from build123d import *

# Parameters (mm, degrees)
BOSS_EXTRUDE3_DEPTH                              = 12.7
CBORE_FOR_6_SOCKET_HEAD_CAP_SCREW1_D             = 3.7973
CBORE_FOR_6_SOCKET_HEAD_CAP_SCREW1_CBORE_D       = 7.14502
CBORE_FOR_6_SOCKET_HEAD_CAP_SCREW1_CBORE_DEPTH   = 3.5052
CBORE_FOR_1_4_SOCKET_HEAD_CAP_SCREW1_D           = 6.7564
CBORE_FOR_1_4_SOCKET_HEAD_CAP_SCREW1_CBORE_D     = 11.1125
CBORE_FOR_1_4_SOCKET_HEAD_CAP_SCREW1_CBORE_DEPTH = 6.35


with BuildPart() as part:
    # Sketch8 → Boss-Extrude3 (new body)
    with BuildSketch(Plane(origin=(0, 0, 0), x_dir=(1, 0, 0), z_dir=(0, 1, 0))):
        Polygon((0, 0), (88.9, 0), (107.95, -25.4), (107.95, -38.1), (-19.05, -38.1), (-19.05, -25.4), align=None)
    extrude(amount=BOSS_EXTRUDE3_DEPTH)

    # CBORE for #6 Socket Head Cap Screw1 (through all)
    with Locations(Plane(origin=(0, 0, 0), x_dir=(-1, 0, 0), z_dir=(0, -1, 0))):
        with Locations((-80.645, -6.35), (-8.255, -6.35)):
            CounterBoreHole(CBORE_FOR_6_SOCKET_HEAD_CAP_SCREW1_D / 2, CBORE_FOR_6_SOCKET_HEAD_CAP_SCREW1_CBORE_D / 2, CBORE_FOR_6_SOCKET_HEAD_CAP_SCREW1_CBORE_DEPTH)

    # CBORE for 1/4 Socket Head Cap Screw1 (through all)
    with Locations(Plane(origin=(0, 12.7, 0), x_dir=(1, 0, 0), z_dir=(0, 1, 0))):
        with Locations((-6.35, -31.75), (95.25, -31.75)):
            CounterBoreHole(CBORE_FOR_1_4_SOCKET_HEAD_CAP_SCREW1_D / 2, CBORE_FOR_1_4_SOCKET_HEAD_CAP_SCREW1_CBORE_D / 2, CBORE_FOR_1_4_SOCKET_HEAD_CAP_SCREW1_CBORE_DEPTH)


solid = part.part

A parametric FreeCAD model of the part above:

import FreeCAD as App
import Part
import Sketcher
from FreeCAD import Vector
Q = App.Units.Quantity

doc = App.newDocument("Part")
body = doc.addObject("PartDesign::Body", "Body")

# Sketch on XZ plane
sketch1 = body.newObject("Sketcher::SketchObject", "Sketch")
sketch1.AttachmentSupport = (doc.getObject("XZ_Plane"), [""])
sketch1.MapMode = "FlatFace"
sketch1.addGeometry([
    Part.LineSegment(Vector(88.9, 0, 0), Vector(0, 0, 0)),  # 0
    Part.LineSegment(Vector(0, 0, 0), Vector(-19.05, 25.4, 0)),  # 1
    Part.LineSegment(Vector(-19.05, 25.4, 0), Vector(-19.05, 38.1, 0)),  # 2
    Part.LineSegment(Vector(-19.05, 38.1, 0), Vector(107.95, 38.1, 0)),  # 3
    Part.LineSegment(Vector(107.95, 38.1, 0), Vector(107.95, 25.4, 0)),  # 4
    Part.LineSegment(Vector(107.95, 25.4, 0), Vector(88.9, 0, 0)),  # 5
], False)
sketch1.addConstraint([
    Sketcher.Constraint("Coincident", 0, 2, 1, 1),
    Sketcher.Constraint("Coincident", 1, 2, 2, 1),
    Sketcher.Constraint("Coincident", 2, 2, 3, 1),
    Sketcher.Constraint("Coincident", 3, 2, 4, 1),
    Sketcher.Constraint("Coincident", 4, 2, 5, 1),
    Sketcher.Constraint("Coincident", 5, 2, 0, 1),
    Sketcher.Constraint("Horizontal", 0),
    Sketcher.Constraint("Vertical", 2),
    Sketcher.Constraint("Horizontal", 3),
    Sketcher.Constraint("Vertical", 4),
    Sketcher.Constraint("Coincident", 0, 2, -1, 1),
    Sketcher.Constraint("Horizontal", 1, 2, 4, 2),
    Sketcher.Constraint("Equal", 1, 5),
    Sketcher.Constraint("DistanceX", 3, 1, 3, 2, Q("5 in")),
    Sketcher.Constraint("DistanceX", 0, 2, 0, 1, Q("3.5 in")),
    Sketcher.Constraint("DistanceY", 2, 1, 2, 2, Q("0.5 in")),
    Sketcher.Constraint("DistanceY", -1, 1, 1, 2, Q("1 in")),
])
pad1 = body.newObject("PartDesign::Pad", "Pad")
pad1.Profile = sketch1
pad1.Length = Q("0.5 in")
pad1.Reversed = True

# Sketch on XZ plane
sketch2 = body.newObject("Sketcher::SketchObject", "Sketch001")
sketch2.AttachmentSupport = (doc.getObject("XZ_Plane"), [""])
sketch2.MapMode = "FlatFace"
sketch2.addGeometry([
    Part.Circle(Vector(80.645, 6.35, 0), Vector(0, 0, 1), 1.89865),
    Part.Circle(Vector(8.255, 6.35, 0), Vector(0, 0, 1), 1.89865),
], False)
sketch2.addConstraint([
    Sketcher.Constraint("Equal", 0, 1),
    Sketcher.Constraint("Horizontal", 0, 3, 1, 3),
    Sketcher.Constraint("Diameter", 0, Q("0.1495 in")),
    Sketcher.Constraint("DistanceY", -1, 1, 0, 3, Q("0.25 in")),
    Sketcher.Constraint("DistanceX", 1, 3, 0, 3, Q("2.85 in")),
    Sketcher.Constraint("DistanceX", -1, 1, 0, 3, Q("3.175 in")),
])
doc.recompute()
hole = body.newObject("PartDesign::Hole", "Hole")
hole.Profile = sketch2
hole.ThreadType = "None"
hole.Diameter = Q("0.1495 in")
hole.DepthType = "ThroughAll"
hole.HoleCutType = "Counterbore"
hole.HoleCutDiameter = Q("0.2813 in")
hole.HoleCutDepth = Q("0.138 in")

# Sketch on XZ plane
sketch3 = body.newObject("Sketcher::SketchObject", "Sketch002")
sketch3.AttachmentSupport = (doc.getObject("XZ_Plane"), [""])
sketch3.MapMode = "FlatFace"
sketch3.AttachmentOffset = App.Placement(Vector(0, 0, -0.5 * 25.4), App.Rotation())
sketch3.addGeometry([
    Part.Circle(Vector(-6.35, 31.75, 0), Vector(0, 0, 1), 3.3782),
    Part.Circle(Vector(95.25, 31.75, 0), Vector(0, 0, 1), 3.3782),
], False)
sketch3.addConstraint([
    Sketcher.Constraint("Equal", 0, 1),
    Sketcher.Constraint("Horizontal", 0, 3, 1, 3),
    Sketcher.Constraint("Diameter", 0, Q("0.266 in")),
    Sketcher.Constraint("DistanceX", 0, 3, 1, 3, Q("4 in")),
    Sketcher.Constraint("DistanceX", 0, 3, -1, 1, Q("0.25 in")),
    Sketcher.Constraint("DistanceY", -1, 1, 0, 3, Q("1.25 in")),
])
doc.recompute()
hole2 = body.newObject("PartDesign::Hole", "Hole001")
hole2.Profile = sketch3
hole2.ThreadType = "None"
hole2.Diameter = Q("0.266 in")
hole2.DepthType = "ThroughAll"
hole2.HoleCutType = "Counterbore"
hole2.HoleCutDiameter = Q("0.4375 in")
hole2.HoleCutDepth = Q("0.25 in")
hole2.Reversed = True

doc.recompute()
